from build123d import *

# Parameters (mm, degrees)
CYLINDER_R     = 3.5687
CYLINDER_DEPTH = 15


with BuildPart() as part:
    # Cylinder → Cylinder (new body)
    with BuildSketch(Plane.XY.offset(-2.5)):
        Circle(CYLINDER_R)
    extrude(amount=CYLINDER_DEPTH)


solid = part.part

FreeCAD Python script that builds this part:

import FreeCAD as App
import Part
import Sketcher
from FreeCAD import Vector

doc = App.newDocument("Part")
body = doc.addObject("PartDesign::Body", "Body")

# Sketch on XY plane
sketch1 = body.newObject("Sketcher::SketchObject", "Sketch")
sketch1.AttachmentSupport = (doc.getObject("XY_Plane"), [""])
sketch1.MapMode = "FlatFace"
sketch1.AttachmentOffset = App.Placement(Vector(0, 0, -2.5), App.Rotation())
sketch1.addGeometry(Part.Circle(Vector(0, 0, 0), Vector(0, 0, 1), 3.6), False)
sketch1.addConstraint([
    Sketcher.Constraint("Coincident", 0, 3, -1, 1),
    Sketcher.Constraint("Diameter", 0, 7.1374),
])
pad1 = body.newObject("PartDesign::Pad", "Pad")
pad1.Profile = sketch1
pad1.Length = 15

doc.recompute()
